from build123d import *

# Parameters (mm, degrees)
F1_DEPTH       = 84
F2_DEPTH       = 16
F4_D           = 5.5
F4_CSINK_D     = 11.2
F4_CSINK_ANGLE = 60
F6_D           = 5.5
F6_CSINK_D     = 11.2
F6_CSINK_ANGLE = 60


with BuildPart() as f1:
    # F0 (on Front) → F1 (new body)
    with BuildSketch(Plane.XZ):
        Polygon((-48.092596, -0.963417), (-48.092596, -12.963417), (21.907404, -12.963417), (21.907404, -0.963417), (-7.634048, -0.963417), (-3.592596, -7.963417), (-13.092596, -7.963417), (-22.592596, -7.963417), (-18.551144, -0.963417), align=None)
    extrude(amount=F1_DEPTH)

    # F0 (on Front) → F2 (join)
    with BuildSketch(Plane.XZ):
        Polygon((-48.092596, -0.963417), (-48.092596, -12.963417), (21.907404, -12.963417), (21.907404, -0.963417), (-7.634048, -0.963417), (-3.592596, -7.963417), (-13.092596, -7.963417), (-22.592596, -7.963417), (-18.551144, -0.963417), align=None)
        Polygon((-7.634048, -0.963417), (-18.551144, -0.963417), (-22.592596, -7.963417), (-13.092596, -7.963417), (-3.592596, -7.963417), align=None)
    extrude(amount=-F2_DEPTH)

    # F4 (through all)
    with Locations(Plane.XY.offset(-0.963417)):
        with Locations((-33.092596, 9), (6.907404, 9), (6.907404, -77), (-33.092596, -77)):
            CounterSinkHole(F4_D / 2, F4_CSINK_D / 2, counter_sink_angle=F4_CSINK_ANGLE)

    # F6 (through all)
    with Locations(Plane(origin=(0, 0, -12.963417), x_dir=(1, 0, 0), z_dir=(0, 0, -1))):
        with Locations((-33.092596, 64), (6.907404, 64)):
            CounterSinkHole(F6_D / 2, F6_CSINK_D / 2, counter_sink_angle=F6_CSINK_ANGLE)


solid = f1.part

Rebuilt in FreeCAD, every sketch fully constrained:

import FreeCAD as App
import Part
import Sketcher
Q = App.Units.Quantity

doc = App.newDocument("Part")
body = doc.addObject("PartDesign::Body", "Body")

sketch1 = doc.addObject("Sketcher::SketchObject", "Sketch")
body.addObject(sketch1)
sketch1.AttachmentSupport = (doc.XZ_Plane, [""])
sketch1.MapMode = "FlatFace"
sketch1.addGeometry(Part.LineSegment(App.Vector(-48, -1, 0), App.Vector(-48, -13, 0)), False)
sketch1.addGeometry(Part.LineSegment(App.Vector(-48, -13, 0), App.Vector(22, -13, 0)), False)
sketch1.addGeometry(Part.LineSegment(App.Vector(22, -13, 0), App.Vector(22, -1, 0)), False)
sketch1.addGeometry(Part.LineSegment(App.Vector(22, -1, 0), App.Vector(-8, -1, 0)), False)
sketch1.addGeometry(Part.LineSegment(App.Vector(-8, -1, 0), App.Vector(-4, -8, 0)), False)
sketch1.addGeometry(Part.LineSegment(App.Vector(-4, -8, 0), App.Vector(-23, -8, 0)), False)
sketch1.addGeometry(Part.LineSegment(App.Vector(-23, -8, 0), App.Vector(-19, -1, 0)), False)
sketch1.addGeometry(Part.LineSegment(App.Vector(-19, -1, 0), App.Vector(-48, -1, 0)), False)
sketch1.addConstraint(Sketcher.Constraint("Coincident", 0, 2, 1, 1))
sketch1.addConstraint(Sketcher.Constraint("Coincident", 1, 2, 2, 1))
sketch1.addConstraint(Sketcher.Constraint("Coincident", 2, 2, 3, 1))
sketch1.addConstraint(Sketcher.Constraint("Coincident", 3, 2, 4, 1))
sketch1.addConstraint(Sketcher.Constraint("Coincident", 4, 2, 5, 1))
sketch1.addConstraint(Sketcher.Constraint("Coincident", 5, 2, 6, 1))
sketch1.addConstraint(Sketcher.Constraint("Coincident", 6, 2, 7, 1))
sketch1.addConstraint(Sketcher.Constraint("Coincident", 7, 2, 0, 1))
sketch1.addConstraint(Sketcher.Constraint("Vertical", 0))
sketch1.addConstraint(Sketcher.Constraint("Horizontal", 1))
sketch1.addConstraint(Sketcher.Constraint("Vertical", 2))
sketch1.addConstraint(Sketcher.Constraint("Horizontal", 3))
sketch1.addConstraint(Sketcher.Constraint("Horizontal", 5))
sketch1.addConstraint(Sketcher.Constraint("Horizontal", 7))
sketch1.addConstraint(Sketcher.Constraint("Horizontal", 3, 2, 6, 2))
sketch1.addConstraint(Sketcher.Constraint("Equal", 3, 7))
sketch1.addConstraint(Sketcher.Constraint("Equal", 4, 6))
sketch1.addConstraint(Sketcher.Constraint("DistanceX", 1, 1, 1, 2, Q("70 mm")))
sketch1.addConstraint(Sketcher.Constraint("DistanceX", 5, 2, 5, 1, Q("19 mm")))
sketch1.addConstraint(Sketcher.Constraint("DistanceY", 0, 2, 0, 1, Q("12 mm")))
sketch1.addConstraint(Sketcher.Constraint("Angle", 4, Q("-59.999999 deg")))
sketch1.addConstraint(Sketcher.Constraint("DistanceY", 4, 2, 3, 2, Q("7 mm")))
sketch1.addConstraint(Sketcher.Constraint("DistanceX", 0, 2, -1, 1, Q("48.092596 mm")))
sketch1.addConstraint(Sketcher.Constraint("DistanceY", 0, 2, -1, 1, Q("12.963417 mm")))
pad1 = doc.addObject("PartDesign::Pad", "Pad")
body.addObject(pad1)
pad1.Profile = sketch1
pad1.Length = 84

sketch2 = doc.addObject("Sketcher::SketchObject", "Sketch001")
body.addObject(sketch2)
sketch2.AttachmentSupport = (doc.XZ_Plane, [""])
sketch2.MapMode = "FlatFace"
sketch2.addGeometry(Part.LineSegment(App.Vector(-48, -1, 0), App.Vector(-48, -13, 0)), False)
sketch2.addGeometry(Part.LineSegment(App.Vector(-48, -13, 0), App.Vector(22, -13, 0)), False)
sketch2.addGeometry(Part.LineSegment(App.Vector(22, -13, 0), App.Vector(22, -1, 0)), False)
sketch2.addGeometry(Part.LineSegment(App.Vector(22, -1, 0), App.Vector(-48, -1, 0)), False)
sketch2.addConstraint(Sketcher.Constraint("Coincident", 0, 2, 1, 1))
sketch2.addConstraint(Sketcher.Constraint("Coincident", 1, 2, 2, 1))
sketch2.addConstraint(Sketcher.Constraint("Coincident", 2, 2, 3, 1))
sketch2.addConstraint(Sketcher.Constraint("Coincident", 3, 2, 0, 1))
sketch2.addConstraint(Sketcher.Constraint("Vertical", 0))
sketch2.addConstraint(Sketcher.Constraint("Horizontal", 1))
sketch2.addConstraint(Sketcher.Constraint("Vertical", 2))
sketch2.addConstraint(Sketcher.Constraint("Horizontal", 3))
sketch2.addConstraint(Sketcher.Constraint("DistanceX", 1, 1, 1, 2, Q("70 mm")))
sketch2.addConstraint(Sketcher.Constraint("DistanceY", 0, 2, 0, 1, Q("12 mm")))
sketch2.addConstraint(Sketcher.Constraint("DistanceX", 0, 2, -1, 1, Q("48.092596 mm")))
sketch2.addConstraint(Sketcher.Constraint("DistanceY", 0, 2, -1, 1, Q("12.963417 mm")))
pad2 = doc.addObject("PartDesign::Pad", "Pad001")
body.addObject(pad2)
pad2.Profile = sketch2
pad2.Length = 16
pad2.Reversed = True

sketch3 = doc.addObject("Sketcher::SketchObject", "Sketch002")
body.addObject(sketch3)
sketch3.AttachmentSupport = (doc.XY_Plane, [""])
sketch3.MapMode = "FlatFace"
sketch3.AttachmentOffset = App.Placement(App.Vector(0, 0, -0.963417), App.Rotation())
sketch3.addGeometry(Part.Circle(App.Vector(-33.1, 9, 0), App.Vector(0, 0, 1), 2.8), False)
sketch3.addGeometry(Part.Circle(App.Vector(6.9, 9, 0), App.Vector(0, 0, 1), 2.8), False)
sketch3.addGeometry(Part.Circle(App.Vector(6.9, -77, 0), App.Vector(0, 0, 1), 2.8), False)
sketch3.addGeometry(Part.Circle(App.Vector(-33.1, -77, 0), App.Vector(0, 0, 1), 2.8), False)
sketch3.addConstraint(Sketcher.Constraint("Equal", 0, 1))
sketch3.addConstraint(Sketcher.Constraint("Equal", 1, 2))
sketch3.addConstraint(Sketcher.Constraint("Equal", 2, 3))
sketch3.addConstraint(Sketcher.Constraint("Horizontal", 0, 3, 1, 3))
sketch3.addConstraint(Sketcher.Constraint("Horizontal", 2, 3, 3, 3))
sketch3.addConstraint(Sketcher.Constraint("Vertical", 1, 3, 2, 3))
sketch3.addConstraint(Sketcher.Constraint("Vertical", 0, 3, 3, 3))
sketch3.addConstraint(Sketcher.Constraint("Diameter", 0, Q("5.5 mm")))
sketch3.addConstraint(Sketcher.Constraint("DistanceY", -1, 1, 0, 3, Q("9 mm")))
sketch3.addConstraint(Sketcher.Constraint("DistanceY", 2, 3, -1, 1, Q("77 mm")))
sketch3.addConstraint(Sketcher.Constraint("DistanceX", 0, 3, 1, 3, Q("40 mm")))
sketch3.addConstraint(Sketcher.Constraint("DistanceX", 0, 3, -1, 1, Q("33.092596 mm")))
doc.recompute()
hole = doc.addObject("PartDesign::Hole", "Hole")
body.addObject(hole)
hole.Profile = sketch3
hole.ThreadType = "None"
hole.Diameter = 5.5
hole.DepthType = "ThroughAll"
hole.HoleCutType = "Countersink"
hole.HoleCutDiameter = 11.2
hole.HoleCutCountersinkAngle = 60

sketch4 = doc.addObject("Sketcher::SketchObject", "Sketch003")
body.addObject(sketch4)
sketch4.AttachmentSupport = (doc.XY_Plane, [""])
sketch4.MapMode = "FlatFace"
sketch4.AttachmentOffset = App.Placement(App.Vector(0, 0, -12.963417), App.Rotation())
sketch4.addGeometry(Part.Circle(App.Vector(-33.1, -64, 0), App.Vector(0, 0, 1), 2.8), False)
sketch4.addGeometry(Part.Circle(App.Vector(6.9, -64, 0), App.Vector(0, 0, 1), 2.8), False)
sketch4.addConstraint(Sketcher.Constraint("Equal", 0, 1))
sketch4.addConstraint(Sketcher.Constraint("Horizontal", 0, 3, 1, 3))
sketch4.addConstraint(Sketcher.Constraint("Diameter", 0, Q("5.5 mm")))
sketch4.addConstraint(Sketcher.Constraint("DistanceY", 0, 3, -1, 1, Q("64 mm")))
sketch4.addConstraint(Sketcher.Constraint("DistanceX", 0, 3, 1, 3, Q("40 mm")))
sketch4.addConstraint(Sketcher.Constraint("DistanceX", 0, 3, -1, 1, Q("33.092596 mm")))
doc.recompute()
hole2 = doc.addObject("PartDesign::Hole", "Hole001")
body.addObject(hole2)
hole2.Profile = sketch4
hole2.ThreadType = "None"
hole2.Diameter = 5.5
hole2.DepthType = "ThroughAll"
hole2.HoleCutType = "Countersink"
hole2.HoleCutDiameter = 11.2
hole2.HoleCutCountersinkAngle = 60
hole2.Reversed = True

doc.recompute()
